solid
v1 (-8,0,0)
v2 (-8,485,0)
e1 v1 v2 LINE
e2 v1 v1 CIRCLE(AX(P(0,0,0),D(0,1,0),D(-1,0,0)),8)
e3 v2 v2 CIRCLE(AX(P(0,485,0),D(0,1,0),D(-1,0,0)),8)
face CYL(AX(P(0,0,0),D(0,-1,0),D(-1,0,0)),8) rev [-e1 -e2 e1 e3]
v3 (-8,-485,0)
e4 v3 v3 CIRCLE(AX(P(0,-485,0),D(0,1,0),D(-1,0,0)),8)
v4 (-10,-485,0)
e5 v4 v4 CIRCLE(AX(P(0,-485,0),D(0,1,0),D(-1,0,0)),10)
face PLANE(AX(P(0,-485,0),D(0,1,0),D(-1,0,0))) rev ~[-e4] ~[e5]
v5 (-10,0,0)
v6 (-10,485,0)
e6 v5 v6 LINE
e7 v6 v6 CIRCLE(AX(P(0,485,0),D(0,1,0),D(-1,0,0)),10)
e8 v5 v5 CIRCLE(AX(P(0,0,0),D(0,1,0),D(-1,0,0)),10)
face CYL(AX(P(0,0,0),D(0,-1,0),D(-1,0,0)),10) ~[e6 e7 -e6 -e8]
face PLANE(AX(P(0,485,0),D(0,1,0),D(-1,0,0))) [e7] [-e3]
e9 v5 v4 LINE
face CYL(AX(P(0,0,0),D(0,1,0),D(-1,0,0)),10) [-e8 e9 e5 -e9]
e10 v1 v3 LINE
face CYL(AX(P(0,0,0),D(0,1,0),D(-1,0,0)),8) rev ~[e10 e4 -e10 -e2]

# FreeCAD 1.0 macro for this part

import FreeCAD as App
import Part
import Sketcher
Q = App.Units.Quantity

doc = App.newDocument("Part")
body = doc.addObject("PartDesign::Body", "Body")

# Sketch on XZ plane
sketch1 = doc.addObject("Sketcher::SketchObject", "Sketch")
body.addObject(sketch1)
sketch1.AttachmentSupport = (doc.XZ_Plane, [""])
sketch1.MapMode = "FlatFace"
sketch1.addGeometry([
    Part.Circle(App.Vector(0, 0, 0), App.Vector(0, 0, 1), 10),
    Part.Circle(App.Vector(0, 0, 0), App.Vector(0, 0, 1), 8),
], False)
sketch1.addConstraint([
    Sketcher.Constraint("Coincident", 0, 3, -1, 1),
    Sketcher.Constraint("Coincident", 1, 3, -1, 1),
    Sketcher.Constraint("Diameter", 0, Q("20 mm")),
    Sketcher.Constraint("Diameter", 1, Q("16 mm")),
])
pad1 = doc.addObject("PartDesign::Pad", "Pad")
body.addObject(pad1)
pad1.Profile = sketch1
pad1.Length = 970
pad1.Midplane = True

doc.recompute()
